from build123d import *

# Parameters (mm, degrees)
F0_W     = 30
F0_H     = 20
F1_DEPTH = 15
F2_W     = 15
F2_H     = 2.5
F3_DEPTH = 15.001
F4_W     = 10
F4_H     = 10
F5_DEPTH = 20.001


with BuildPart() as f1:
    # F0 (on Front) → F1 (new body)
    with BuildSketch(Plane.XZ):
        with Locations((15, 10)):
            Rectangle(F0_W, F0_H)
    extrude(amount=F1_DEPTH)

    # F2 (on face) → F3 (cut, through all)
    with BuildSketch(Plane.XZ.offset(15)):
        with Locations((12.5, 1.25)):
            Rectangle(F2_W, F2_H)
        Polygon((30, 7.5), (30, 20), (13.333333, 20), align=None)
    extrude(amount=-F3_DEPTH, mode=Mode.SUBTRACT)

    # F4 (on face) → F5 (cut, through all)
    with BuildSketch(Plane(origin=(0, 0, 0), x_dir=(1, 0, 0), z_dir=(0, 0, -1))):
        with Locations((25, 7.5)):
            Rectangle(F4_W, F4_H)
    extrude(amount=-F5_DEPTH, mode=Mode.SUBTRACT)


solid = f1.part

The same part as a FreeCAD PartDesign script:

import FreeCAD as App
import Part
import Sketcher
Q = App.Units.Quantity

doc = App.newDocument("Part")
body = doc.addObject("PartDesign::Body", "Body")

# Sketch on XZ plane
sketch1 = body.newObject("Sketcher::SketchObject", "Sketch")
sketch1.AttachmentSupport = (doc.getObject("XZ_Plane"), [""])
sketch1.MapMode = "FlatFace"
sketch1.addGeometry([
    Part.LineSegment(App.Vector(0, 20, 0), App.Vector(0, 0, 0)),
    Part.LineSegment(App.Vector(0, 0, 0), App.Vector(30, 0, 0)),
    Part.LineSegment(App.Vector(30, 0, 0), App.Vector(30, 20, 0)),
    Part.LineSegment(App.Vector(30, 20, 0), App.Vector(0, 20, 0)),
], False)
sketch1.addConstraint([
    Sketcher.Constraint("Coincident", 0, 2, 1, 1),
    Sketcher.Constraint("Coincident", 1, 2, 2, 1),
    Sketcher.Constraint("Coincident", 2, 2, 3, 1),
    Sketcher.Constraint("Coincident", 3, 2, 0, 1),
    Sketcher.Constraint("Vertical", 0),
    Sketcher.Constraint("Horizontal", 1),
    Sketcher.Constraint("Vertical", 2),
    Sketcher.Constraint("Horizontal", 3),
    Sketcher.Constraint("Coincident", 0, 2, -1, 1),
    Sketcher.Constraint("DistanceX", 1, 1, 1, 2, Q("30 mm")),
    Sketcher.Constraint("DistanceY", 0, 2, 0, 1, Q("20 mm")),
])
pad1 = body.newObject("PartDesign::Pad", "Pad")
pad1.Profile = sketch1
pad1.Length = 15

# Sketch on XZ plane
sketch2 = body.newObject("Sketcher::SketchObject", "Sketch001")
sketch2.AttachmentSupport = (doc.getObject("XZ_Plane"), [""])
sketch2.MapMode = "FlatFace"
sketch2.AttachmentOffset = App.Placement(App.Vector(0, 0, 15), App.Rotation())
sketch2.addGeometry([
    Part.LineSegment(App.Vector(5, 2.5, 0), App.Vector(5, 0, 0)),  # 0
    Part.LineSegment(App.Vector(5, 0, 0), App.Vector(20, 0, 0)),  # 1
    Part.LineSegment(App.Vector(20, 0, 0), App.Vector(20, 2.5, 0)),  # 2
    Part.LineSegment(App.Vector(20, 2.5, 0), App.Vector(5, 2.5, 0)),  # 3
    Part.LineSegment(App.Vector(30, 7.5, 0), App.Vector(30, 20, 0)),  # 4
    Part.LineSegment(App.Vector(30, 20, 0), App.Vector(13.3, 20, 0)),  # 5
    Part.LineSegment(App.Vector(13.3, 20, 0), App.Vector(30, 7.5, 0)),  # 6
], False)
sketch2.addConstraint([
    Sketcher.Constraint("Coincident", 0, 2, 1, 1),
    Sketcher.Constraint("Coincident", 1, 2, 2, 1),
    Sketcher.Constraint("Coincident", 2, 2, 3, 1),
    Sketcher.Constraint("Coincident", 3, 2, 0, 1),
    Sketcher.Constraint("Coincident", 4, 2, 5, 1),
    Sketcher.Constraint("Coincident", 5, 2, 6, 1),
    Sketcher.Constraint("Coincident", 6, 2, 4, 1),
    Sketcher.Constraint("Vertical", 0),
    Sketcher.Constraint("Horizontal", 1),
    Sketcher.Constraint("Vertical", 2),
    Sketcher.Constraint("Horizontal", 3),
    Sketcher.Constraint("Vertical", 4),
    Sketcher.Constraint("Horizontal", 5),
    Sketcher.Constraint("PointOnObject", 0, 2, -1),
    Sketcher.Constraint("DistanceX", 1, 1, 1, 2, Q("15 mm")),
    Sketcher.Constraint("DistanceY", 0, 2, 0, 1, Q("2.5 mm")),
    Sketcher.Constraint("DistanceY", 4, 1, 4, 2, Q("12.5 mm")),
    Sketcher.Constraint("DistanceX", -1, 1, 0, 2, Q("5 mm")),
    Sketcher.Constraint("DistanceX", -1, 1, 4, 2, Q("30 mm")),
    Sketcher.Constraint("DistanceY", -1, 1, 4, 2, Q("20 mm")),
    Sketcher.Constraint("DistanceX", 5, 2, 5, 1, Q("16.666667 mm")),
])
pocket1 = body.newObject("PartDesign::Pocket", "Pocket")
pocket1.Profile = sketch2
pocket1.Type = "ThroughAll"

# Sketch on XY plane
sketch3 = body.newObject("Sketcher::SketchObject", "Sketch002")
sketch3.AttachmentSupport = (doc.getObject("XY_Plane"), [""])
sketch3.MapMode = "FlatFace"
sketch3.addGeometry([
    Part.LineSegment(App.Vector(20, -12, 0), App.Vector(20, -2, 0)),
    Part.LineSegment(App.Vector(20, -2, 0), App.Vector(30, -2, 0)),
    Part.LineSegment(App.Vector(30, -2, 0), App.Vector(30, -12, 0)),
    Part.LineSegment(App.Vector(30, -12, 0), App.Vector(20, -12, 0)),
], False)
sketch3.addConstraint([
    Sketcher.Constraint("Coincident", 0, 2, 1, 1),
    Sketcher.Constraint("Coincident", 1, 2, 2, 1),
    Sketcher.Constraint("Coincident", 2, 2, 3, 1),
    Sketcher.Constraint("Coincident", 3, 2, 0, 1),
    Sketcher.Constraint("Vertical", 0),
    Sketcher.Constraint("Horizontal", 1),
    Sketcher.Constraint("Vertical", 2),
    Sketcher.Constraint("Horizontal", 3),
    Sketcher.Constraint("Equal", 3, 0),
    Sketcher.Constraint("DistanceX", 1, 1, 1, 2, Q("10 mm")),
    Sketcher.Constraint("DistanceX", -1, 1, 0, 2, Q("20 mm")),
    Sketcher.Constraint("DistanceY", 0, 2, -1, 1, Q("2.5 mm")),
])
pocket2 = body.newObject("PartDesign::Pocket", "Pocket001")
pocket2.Profile = sketch3
pocket2.Type = "ThroughAll"
pocket2.Reversed = True

doc.recompute()
